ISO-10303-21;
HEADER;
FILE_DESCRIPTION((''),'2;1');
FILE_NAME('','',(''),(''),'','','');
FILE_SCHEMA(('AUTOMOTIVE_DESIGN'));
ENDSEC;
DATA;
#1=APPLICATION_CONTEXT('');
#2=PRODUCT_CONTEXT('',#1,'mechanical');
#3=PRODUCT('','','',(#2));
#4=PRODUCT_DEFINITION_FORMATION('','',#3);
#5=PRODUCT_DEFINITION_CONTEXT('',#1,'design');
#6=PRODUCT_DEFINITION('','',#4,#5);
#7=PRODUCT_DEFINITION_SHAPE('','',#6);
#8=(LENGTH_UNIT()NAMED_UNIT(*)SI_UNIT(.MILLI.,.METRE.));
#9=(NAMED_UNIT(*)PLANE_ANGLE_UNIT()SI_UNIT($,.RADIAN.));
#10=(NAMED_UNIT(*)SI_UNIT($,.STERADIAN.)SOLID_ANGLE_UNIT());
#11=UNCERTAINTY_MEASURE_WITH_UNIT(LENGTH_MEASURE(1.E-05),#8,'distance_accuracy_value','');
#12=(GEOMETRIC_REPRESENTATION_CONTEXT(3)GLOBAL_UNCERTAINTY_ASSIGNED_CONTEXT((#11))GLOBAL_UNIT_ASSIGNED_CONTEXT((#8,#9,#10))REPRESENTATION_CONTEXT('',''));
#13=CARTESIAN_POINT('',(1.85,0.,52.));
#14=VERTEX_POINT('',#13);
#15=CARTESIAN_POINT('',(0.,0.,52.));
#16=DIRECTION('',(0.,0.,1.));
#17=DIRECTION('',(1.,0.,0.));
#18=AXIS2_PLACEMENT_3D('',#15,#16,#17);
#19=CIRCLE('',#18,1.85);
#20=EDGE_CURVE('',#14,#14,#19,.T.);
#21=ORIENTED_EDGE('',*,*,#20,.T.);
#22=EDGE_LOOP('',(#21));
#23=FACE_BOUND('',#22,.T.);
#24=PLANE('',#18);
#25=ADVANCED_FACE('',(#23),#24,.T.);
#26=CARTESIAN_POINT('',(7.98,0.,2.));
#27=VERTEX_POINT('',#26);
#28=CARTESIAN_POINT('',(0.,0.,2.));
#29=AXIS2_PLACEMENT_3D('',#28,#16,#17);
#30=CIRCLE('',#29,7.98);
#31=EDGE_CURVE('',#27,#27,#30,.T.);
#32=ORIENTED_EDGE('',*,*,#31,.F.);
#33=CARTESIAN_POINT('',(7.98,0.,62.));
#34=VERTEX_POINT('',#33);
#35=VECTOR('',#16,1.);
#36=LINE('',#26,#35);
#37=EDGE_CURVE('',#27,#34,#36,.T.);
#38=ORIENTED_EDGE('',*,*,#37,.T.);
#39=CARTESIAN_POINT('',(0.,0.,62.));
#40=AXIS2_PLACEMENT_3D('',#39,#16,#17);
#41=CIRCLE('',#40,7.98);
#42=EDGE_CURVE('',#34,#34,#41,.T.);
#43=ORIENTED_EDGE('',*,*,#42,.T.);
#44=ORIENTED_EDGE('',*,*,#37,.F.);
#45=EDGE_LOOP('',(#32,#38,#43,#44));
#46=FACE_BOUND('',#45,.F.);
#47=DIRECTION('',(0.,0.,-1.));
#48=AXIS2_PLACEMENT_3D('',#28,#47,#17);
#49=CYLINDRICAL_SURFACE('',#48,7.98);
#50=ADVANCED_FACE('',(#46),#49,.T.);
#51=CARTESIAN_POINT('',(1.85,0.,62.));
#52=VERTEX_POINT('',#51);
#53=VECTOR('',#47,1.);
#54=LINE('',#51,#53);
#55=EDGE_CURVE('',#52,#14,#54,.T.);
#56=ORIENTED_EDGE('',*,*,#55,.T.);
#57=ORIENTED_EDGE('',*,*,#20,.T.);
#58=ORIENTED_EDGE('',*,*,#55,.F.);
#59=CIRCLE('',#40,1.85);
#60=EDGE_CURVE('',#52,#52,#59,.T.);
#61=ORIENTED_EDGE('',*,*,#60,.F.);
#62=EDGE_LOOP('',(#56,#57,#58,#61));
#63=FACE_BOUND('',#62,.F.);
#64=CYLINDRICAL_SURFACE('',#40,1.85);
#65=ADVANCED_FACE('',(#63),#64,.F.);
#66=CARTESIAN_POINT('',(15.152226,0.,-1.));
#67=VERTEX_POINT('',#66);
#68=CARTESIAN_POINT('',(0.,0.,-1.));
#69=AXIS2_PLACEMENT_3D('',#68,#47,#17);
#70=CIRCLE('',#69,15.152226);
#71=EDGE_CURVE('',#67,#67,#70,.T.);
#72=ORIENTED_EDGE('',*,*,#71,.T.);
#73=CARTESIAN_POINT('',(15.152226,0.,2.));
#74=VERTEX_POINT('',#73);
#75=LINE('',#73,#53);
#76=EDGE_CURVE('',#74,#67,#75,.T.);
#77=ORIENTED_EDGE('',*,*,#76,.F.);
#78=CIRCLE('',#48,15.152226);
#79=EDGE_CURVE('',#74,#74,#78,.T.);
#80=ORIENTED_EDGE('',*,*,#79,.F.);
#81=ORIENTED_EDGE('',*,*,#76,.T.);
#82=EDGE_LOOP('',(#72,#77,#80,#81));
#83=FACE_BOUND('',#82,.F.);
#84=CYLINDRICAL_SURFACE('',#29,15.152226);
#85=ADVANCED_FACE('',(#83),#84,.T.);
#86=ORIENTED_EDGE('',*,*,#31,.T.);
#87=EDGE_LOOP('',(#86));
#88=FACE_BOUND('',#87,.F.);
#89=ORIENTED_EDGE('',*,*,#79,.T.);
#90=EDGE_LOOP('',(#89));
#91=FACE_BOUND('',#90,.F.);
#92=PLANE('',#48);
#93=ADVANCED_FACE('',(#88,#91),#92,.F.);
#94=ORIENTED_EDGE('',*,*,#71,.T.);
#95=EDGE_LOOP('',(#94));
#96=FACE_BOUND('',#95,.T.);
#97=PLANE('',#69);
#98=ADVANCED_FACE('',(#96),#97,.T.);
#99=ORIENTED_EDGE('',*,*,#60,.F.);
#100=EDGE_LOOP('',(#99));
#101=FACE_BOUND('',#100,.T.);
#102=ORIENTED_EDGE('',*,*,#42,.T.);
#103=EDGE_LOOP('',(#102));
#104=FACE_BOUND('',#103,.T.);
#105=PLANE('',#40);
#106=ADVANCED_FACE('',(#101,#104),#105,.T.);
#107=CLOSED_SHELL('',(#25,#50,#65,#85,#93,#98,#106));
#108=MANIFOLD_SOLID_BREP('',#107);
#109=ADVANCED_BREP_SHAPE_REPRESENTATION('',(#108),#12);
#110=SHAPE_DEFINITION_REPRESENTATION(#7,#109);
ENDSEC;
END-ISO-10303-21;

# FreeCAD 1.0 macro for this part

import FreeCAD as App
import Part
import Sketcher
from FreeCAD import Vector
Q = App.Units.Quantity

doc = App.newDocument("Part")
params = doc.addObject("Spreadsheet::Sheet", "Params")
for row, (alias, value) in enumerate([
    ("sketch1_diameter", "15.96 mm"),
    ("pad1_length", "60 mm"),
    ("sketch2_diameter", "3.7 mm"),
    ("pocket1_length", "10 mm"),
    ("pad2_length", "3 mm"),
], start=1):
    params.set(f"A{row}", alias)
    params.set(f"B{row}", "=" + value)
    params.setAlias(f"B{row}", alias)

body = doc.addObject("PartDesign::Body", "Body")

sketch1 = body.newObject("Sketcher::SketchObject", "Sketch")
sketch1.AttachmentSupport = (doc.getObject("XY_Plane"), [""])
sketch1.MapMode = "FlatFace"
sketch1.AttachmentOffset = App.Placement(Vector(0, 0, 2), App.Rotation())
sketch1.addGeometry(Part.Circle(Vector(0, 0, 0), Vector(0, 0, 1), 8), False)
sketch1.addConstraint(Sketcher.Constraint("Coincident", 0, 3, -1, 1))
sketch1.addConstraint(Sketcher.Constraint("Diameter", 0, Q("15.96 mm")))
sketch1.setExpression("Constraints[1]", "Params.sketch1_diameter")
pad1 = body.newObject("PartDesign::Pad", "Pad")
pad1.Profile = sketch1
pad1.setExpression("Length", "Params.pad1_length")

sketch2 = body.newObject("Sketcher::SketchObject", "Sketch001")
sketch2.AttachmentSupport = (doc.getObject("XY_Plane"), [""])
sketch2.MapMode = "FlatFace"
sketch2.AttachmentOffset = App.Placement(Vector(0, 0, 62), App.Rotation())
sketch2.addGeometry(Part.Circle(Vector(0, 0, 0), Vector(0, 0, 1), 1.9), False)
sketch2.addConstraint(Sketcher.Constraint("Coincident", 0, 3, -1, 1))
sketch2.addConstraint(Sketcher.Constraint("Diameter", 0, Q("3.7 mm")))
sketch2.setExpression("Constraints[1]", "Params.sketch2_diameter")
pocket1 = body.newObject("PartDesign::Pocket", "Pocket")
pocket1.Profile = sketch2
pocket1.setExpression("Length", "Params.pocket1_length")

sketch3 = body.newObject("Sketcher::SketchObject", "Sketch002")
sketch3.AttachmentSupport = (doc.getObject("XY_Plane"), [""])
sketch3.MapMode = "FlatFace"
sketch3.AttachmentOffset = App.Placement(Vector(0, 0, 2), App.Rotation())
sketch3.addGeometry(Part.Circle(Vector(0, 0, 0), Vector(0, 0, 1), 15), False)
sketch3.addConstraint(Sketcher.Constraint("Coincident", 0, 3, -1, 1))
sketch3.addConstraint(Sketcher.Constraint("Diameter", 0, Q("30.304452 mm")))
pad2 = body.newObject("PartDesign::Pad", "Pad001")
pad2.Profile = sketch3
pad2.setExpression("Length", "Params.pad2_length")
pad2.Reversed = True

doc.recompute()
